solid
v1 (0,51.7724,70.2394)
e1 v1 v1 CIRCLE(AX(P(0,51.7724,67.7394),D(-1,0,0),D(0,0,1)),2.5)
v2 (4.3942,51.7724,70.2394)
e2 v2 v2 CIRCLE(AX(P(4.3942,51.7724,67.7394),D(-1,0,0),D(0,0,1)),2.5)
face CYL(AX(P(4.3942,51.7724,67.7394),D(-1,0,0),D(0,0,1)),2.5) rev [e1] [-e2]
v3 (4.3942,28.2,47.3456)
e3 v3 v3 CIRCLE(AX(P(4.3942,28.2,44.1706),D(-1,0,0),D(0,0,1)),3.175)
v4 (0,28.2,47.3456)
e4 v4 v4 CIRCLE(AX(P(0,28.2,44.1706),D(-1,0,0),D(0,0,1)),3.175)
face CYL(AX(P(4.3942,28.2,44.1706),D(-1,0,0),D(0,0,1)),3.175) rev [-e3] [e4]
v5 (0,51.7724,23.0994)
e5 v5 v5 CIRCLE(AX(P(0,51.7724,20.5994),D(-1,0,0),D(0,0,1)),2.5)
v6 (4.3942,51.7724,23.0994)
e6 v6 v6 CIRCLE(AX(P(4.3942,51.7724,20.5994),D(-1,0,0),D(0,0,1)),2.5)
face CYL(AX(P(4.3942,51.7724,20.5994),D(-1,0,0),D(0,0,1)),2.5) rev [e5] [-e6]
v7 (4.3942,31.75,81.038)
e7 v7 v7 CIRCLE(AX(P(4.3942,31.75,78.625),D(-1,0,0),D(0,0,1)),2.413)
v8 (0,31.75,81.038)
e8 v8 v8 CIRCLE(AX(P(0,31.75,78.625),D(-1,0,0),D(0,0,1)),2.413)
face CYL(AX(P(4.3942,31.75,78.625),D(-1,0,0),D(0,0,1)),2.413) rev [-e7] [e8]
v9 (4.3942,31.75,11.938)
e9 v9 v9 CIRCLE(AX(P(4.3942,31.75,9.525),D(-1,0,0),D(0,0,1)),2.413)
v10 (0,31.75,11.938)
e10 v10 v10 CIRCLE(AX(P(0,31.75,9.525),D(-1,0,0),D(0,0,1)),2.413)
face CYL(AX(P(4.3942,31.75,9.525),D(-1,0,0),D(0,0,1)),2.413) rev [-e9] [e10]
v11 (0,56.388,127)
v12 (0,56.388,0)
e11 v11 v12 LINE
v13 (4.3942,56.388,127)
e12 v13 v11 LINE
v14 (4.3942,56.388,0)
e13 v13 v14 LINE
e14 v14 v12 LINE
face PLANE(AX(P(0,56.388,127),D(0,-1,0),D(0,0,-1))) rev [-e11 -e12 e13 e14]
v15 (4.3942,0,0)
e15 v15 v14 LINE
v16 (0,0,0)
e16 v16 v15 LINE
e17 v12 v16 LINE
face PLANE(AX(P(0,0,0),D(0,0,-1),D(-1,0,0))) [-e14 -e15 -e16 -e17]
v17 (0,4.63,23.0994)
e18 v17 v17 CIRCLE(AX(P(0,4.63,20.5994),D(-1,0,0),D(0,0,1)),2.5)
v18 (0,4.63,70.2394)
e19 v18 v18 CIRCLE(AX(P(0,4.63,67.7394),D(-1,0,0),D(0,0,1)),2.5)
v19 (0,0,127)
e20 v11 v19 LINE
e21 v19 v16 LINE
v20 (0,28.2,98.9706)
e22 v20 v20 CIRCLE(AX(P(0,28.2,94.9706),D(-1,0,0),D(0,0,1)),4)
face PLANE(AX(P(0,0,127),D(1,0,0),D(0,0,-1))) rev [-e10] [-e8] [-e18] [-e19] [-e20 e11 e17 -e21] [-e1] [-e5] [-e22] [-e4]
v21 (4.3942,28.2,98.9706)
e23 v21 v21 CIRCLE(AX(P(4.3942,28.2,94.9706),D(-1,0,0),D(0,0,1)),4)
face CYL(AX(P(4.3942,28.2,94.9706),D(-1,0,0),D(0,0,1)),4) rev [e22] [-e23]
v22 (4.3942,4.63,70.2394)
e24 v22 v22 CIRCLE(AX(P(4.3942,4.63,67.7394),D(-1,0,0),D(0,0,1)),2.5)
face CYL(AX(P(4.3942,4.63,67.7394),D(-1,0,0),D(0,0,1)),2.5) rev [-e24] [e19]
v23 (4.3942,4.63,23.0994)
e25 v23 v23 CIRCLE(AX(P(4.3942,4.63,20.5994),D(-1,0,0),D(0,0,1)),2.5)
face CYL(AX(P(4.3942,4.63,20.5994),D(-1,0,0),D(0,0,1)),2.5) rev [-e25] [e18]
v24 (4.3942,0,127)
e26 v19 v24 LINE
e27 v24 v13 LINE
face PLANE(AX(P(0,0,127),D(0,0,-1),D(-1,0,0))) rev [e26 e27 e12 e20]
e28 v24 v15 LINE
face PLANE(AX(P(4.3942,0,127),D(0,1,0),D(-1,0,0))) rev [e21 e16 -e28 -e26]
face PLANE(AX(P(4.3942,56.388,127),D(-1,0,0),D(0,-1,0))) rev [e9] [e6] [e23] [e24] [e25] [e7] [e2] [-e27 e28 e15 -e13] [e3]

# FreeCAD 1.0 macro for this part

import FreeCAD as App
import Part
import Sketcher

V = App.Vector
Q = App.Units.Quantity


def add_polygon(sketch, points):
    """Adds a closed chain of lines whose ends are joined by coincident constraints."""
    first, n = sketch.GeometryCount, len(points)
    for a, b in zip(points, points[1:] + points[:1]):
        sketch.addGeometry(Part.LineSegment(App.Vector(*a, 0), App.Vector(*b, 0)), False)
    for i in range(n):
        sketch.addConstraint(Sketcher.Constraint("Coincident", first + i, 2, first + (i + 1) % n, 1))

doc = App.newDocument("Part")
body = doc.addObject("PartDesign::Body", "Body")

sketch1 = doc.addObject("Sketcher::SketchObject", "Sketch")
body.addObject(sketch1)
sketch1.AttachmentSupport = (doc.XY_Plane, [""])
sketch1.MapMode = "FlatFace"
add_polygon(sketch1, [(0, 56.388), (0, 0), (4.3942, 0), (4.3942, 56.388)])
sketch1.addConstraint(Sketcher.Constraint("Vertical", 0))
sketch1.addConstraint(Sketcher.Constraint("Horizontal", 1))
sketch1.addConstraint(Sketcher.Constraint("Vertical", 2))
sketch1.addConstraint(Sketcher.Constraint("Horizontal", 3))
sketch1.addConstraint(Sketcher.Constraint("Coincident", 0, 2, -1, 1))
sketch1.addConstraint(Sketcher.Constraint("DistanceY", 0, 2, 0, 1, Q("2.22 in")))
sketch1.addConstraint(Sketcher.Constraint("DistanceX", 1, 1, 1, 2, Q("0.173 in")))
pad1 = doc.addObject("PartDesign::Pad", "Pad")
body.addObject(pad1)
pad1.Profile = sketch1
pad1.Length = Q("5 in")

sketch2 = doc.addObject("Sketcher::SketchObject", "Sketch001")
body.addObject(sketch2)
sketch2.AttachmentSupport = (doc.YZ_Plane, [""])
sketch2.MapMode = "FlatFace"
sketch2.addGeometry(Part.Circle(V(4.63, 20.5994, 0), V(0, 0, 1), 2.5), False)
sketch2.addGeometry(Part.Circle(V(31.75, 9.525, 0), V(0, 0, 1), 2.413), False)
sketch2.addGeometry(Part.Circle(V(4.63, 67.7394, 0), V(0, 0, 1), 2.5), False)
sketch2.addGeometry(Part.Circle(V(31.75, 78.625, 0), V(0, 0, 1), 2.413), False)
sketch2.addGeometry(Part.Circle(V(28.2, 44.1706, 0), V(0, 0, 1), 3.175), False)
sketch2.addGeometry(Part.Circle(V(28.2, 94.9706, 0), V(0, 0, 1), 4), False)
sketch2.addGeometry(Part.Circle(V(51.7724, 67.7394, 0), V(0, 0, 1), 2.5), False)
sketch2.addGeometry(Part.Circle(V(51.7724, 20.5994, 0), V(0, 0, 1), 2.5), False)
sketch2.addConstraint(Sketcher.Constraint("Equal", 0, 2))
sketch2.addConstraint(Sketcher.Constraint("Equal", 1, 3))
sketch2.addConstraint(Sketcher.Constraint("Equal", 2, 6))
sketch2.addConstraint(Sketcher.Constraint("Equal", 6, 7))
sketch2.addConstraint(Sketcher.Constraint("Horizontal", 2, 3, 6, 3))
sketch2.addConstraint(Sketcher.Constraint("Horizontal", 0, 3, 7, 3))
sketch2.addConstraint(Sketcher.Constraint("Vertical", 0, 3, 2, 3))
sketch2.addConstraint(Sketcher.Constraint("Vertical", 1, 3, 3, 3))
sketch2.addConstraint(Sketcher.Constraint("Vertical", 4, 3, 5, 3))
sketch2.addConstraint(Sketcher.Constraint("Vertical", 6, 3, 7, 3))
sketch2.addConstraint(Sketcher.Constraint("Diameter", 1, Q("0.19 in")))
sketch2.addConstraint(Sketcher.Constraint("Diameter", 4, Q("0.25 in")))
sketch2.addConstraint(Sketcher.Constraint("DistanceY", 4, 3, 5, 3, Q("2 in")))
sketch2.addConstraint(Sketcher.Constraint("Diameter", 0, Q("5 mm")))
sketch2.addConstraint(Sketcher.Constraint("Diameter", 5, Q("8 mm")))
sketch2.addConstraint(Sketcher.Constraint("DistanceX", -1, 1, 1, 3, Q("1.25 in")))
sketch2.addConstraint(Sketcher.Constraint("DistanceY", -1, 1, 0, 3, Q("0.811 in")))
sketch2.addConstraint(Sketcher.Constraint("DistanceY", -1, 1, 1, 3, Q("0.375 in")))
sketch2.addConstraint(Sketcher.Constraint("DistanceY", -1, 1, 4, 3, Q("1.739 in")))
sketch2.addConstraint(Sketcher.Constraint("DistanceX", 2, 3, 6, 3, Q("1.856 in")))
sketch2.addConstraint(Sketcher.Constraint("DistanceX", -1, 1, 0, 3, Q("4.63 mm")))
sketch2.addConstraint(Sketcher.Constraint("DistanceY", -1, 1, 2, 3, Q("67.7394 mm")))
sketch2.addConstraint(Sketcher.Constraint("DistanceY", -1, 1, 3, 3, Q("78.625 mm")))
sketch2.addConstraint(Sketcher.Constraint("DistanceX", -1, 1, 4, 3, Q("28.2 mm")))
pocket1 = doc.addObject("PartDesign::Pocket", "Pocket")
body.addObject(pocket1)
pocket1.Profile = sketch2
pocket1.Type = "ThroughAll"
pocket1.Reversed = True

doc.recompute()
